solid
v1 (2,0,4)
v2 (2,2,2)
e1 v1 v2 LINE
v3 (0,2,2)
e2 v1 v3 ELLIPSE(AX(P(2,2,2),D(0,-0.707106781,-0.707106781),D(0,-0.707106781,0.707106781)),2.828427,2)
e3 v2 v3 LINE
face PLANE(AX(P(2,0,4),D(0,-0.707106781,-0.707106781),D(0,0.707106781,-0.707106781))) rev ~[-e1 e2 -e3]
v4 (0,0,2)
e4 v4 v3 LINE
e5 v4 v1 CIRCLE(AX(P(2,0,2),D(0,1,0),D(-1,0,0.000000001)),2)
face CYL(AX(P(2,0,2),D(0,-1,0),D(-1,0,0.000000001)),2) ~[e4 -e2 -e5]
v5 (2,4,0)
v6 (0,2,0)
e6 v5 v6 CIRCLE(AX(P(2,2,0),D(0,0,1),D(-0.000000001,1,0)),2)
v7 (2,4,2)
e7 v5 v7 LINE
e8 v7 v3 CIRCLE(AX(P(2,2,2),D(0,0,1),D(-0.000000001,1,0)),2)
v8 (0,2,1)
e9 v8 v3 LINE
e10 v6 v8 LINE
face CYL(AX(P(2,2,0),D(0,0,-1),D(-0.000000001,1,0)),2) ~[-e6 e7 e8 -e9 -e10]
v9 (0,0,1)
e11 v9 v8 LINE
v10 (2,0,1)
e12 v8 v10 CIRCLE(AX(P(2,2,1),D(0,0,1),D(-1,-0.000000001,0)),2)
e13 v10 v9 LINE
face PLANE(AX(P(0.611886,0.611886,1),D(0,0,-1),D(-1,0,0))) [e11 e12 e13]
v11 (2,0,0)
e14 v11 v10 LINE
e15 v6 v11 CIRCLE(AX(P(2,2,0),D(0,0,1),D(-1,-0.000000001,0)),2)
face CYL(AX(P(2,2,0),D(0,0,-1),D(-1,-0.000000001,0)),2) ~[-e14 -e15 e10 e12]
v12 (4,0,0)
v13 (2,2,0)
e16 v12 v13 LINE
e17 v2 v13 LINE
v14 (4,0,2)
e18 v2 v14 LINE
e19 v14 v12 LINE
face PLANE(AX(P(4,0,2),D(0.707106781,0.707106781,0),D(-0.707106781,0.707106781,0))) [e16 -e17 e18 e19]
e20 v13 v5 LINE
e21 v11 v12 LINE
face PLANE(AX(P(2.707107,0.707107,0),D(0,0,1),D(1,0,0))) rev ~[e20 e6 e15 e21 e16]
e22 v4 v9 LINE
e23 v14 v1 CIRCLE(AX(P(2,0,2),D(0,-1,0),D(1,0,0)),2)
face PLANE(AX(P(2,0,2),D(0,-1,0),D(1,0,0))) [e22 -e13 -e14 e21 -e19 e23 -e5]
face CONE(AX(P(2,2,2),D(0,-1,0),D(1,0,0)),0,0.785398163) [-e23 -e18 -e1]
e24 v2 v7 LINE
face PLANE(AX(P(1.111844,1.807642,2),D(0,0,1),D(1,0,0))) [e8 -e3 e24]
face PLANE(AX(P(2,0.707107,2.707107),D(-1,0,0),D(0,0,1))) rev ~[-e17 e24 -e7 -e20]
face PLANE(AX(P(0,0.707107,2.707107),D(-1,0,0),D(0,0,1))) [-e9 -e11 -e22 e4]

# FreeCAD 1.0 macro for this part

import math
import FreeCAD as App
import Part
import Sketcher

V = App.Vector


def add_polygon(sketch, points):
    """Adds a closed chain of lines whose ends are joined by coincident constraints."""
    first, n = sketch.GeometryCount, len(points)
    for a, b in zip(points, points[1:] + points[:1]):
        sketch.addGeometry(Part.LineSegment(App.Vector(*a, 0), App.Vector(*b, 0)), False)
    for i in range(n):
        sketch.addConstraint(Sketcher.Constraint("Coincident", first + i, 2, first + (i + 1) % n, 1))

doc = App.newDocument("Part")
body = doc.addObject("PartDesign::Body", "Body")

# Sketch on XY plane
sketch1 = body.newObject("Sketcher::SketchObject", "Sketch")
sketch1.AttachmentSupport = (doc.getObject("XY_Plane"), [""])
sketch1.MapMode = "FlatFace"
sketch1.addGeometry([
    Part.LineSegment(V(0, 0, 0), V(2, 0, 0)),
    Part.LineSegment(V(2, 0, 0), V(2, 4, 0)),
    Part.ArcOfCircle(Part.Circle(V(2, 2, 0), V(0, 0, 1), 2), math.radians(90), math.radians(180)),
    Part.LineSegment(V(0, 2, 0), V(0, 0, 0)),
], False)
sketch1.addConstraint([
    Sketcher.Constraint("Coincident", 0, 2, 1, 1),
    Sketcher.Constraint("Coincident", 1, 2, 2, 1),
    Sketcher.Constraint("Tangent", 2, 2, 3, 1),
    Sketcher.Constraint("Coincident", 3, 2, 0, 1),
    Sketcher.Constraint("Horizontal", 0),
    Sketcher.Constraint("Vertical", 1),
    Sketcher.Constraint("Vertical", 3),
    Sketcher.Constraint("Coincident", 3, 2, -1, 1),
    Sketcher.Constraint("Vertical", 2, 3, 0, 2),
    Sketcher.Constraint("Equal", 0, 3),
    Sketcher.Constraint("Radius", 2, 2.0),
])
pad1 = body.newObject("PartDesign::Pad", "Pad")
pad1.Profile = sketch1
pad1.Length = 2

# Sketch on YZ plane
sketch2 = body.newObject("Sketcher::SketchObject", "Sketch001")
sketch2.AttachmentSupport = (doc.getObject("YZ_Plane"), [""])
sketch2.MapMode = "FlatFace"
sketch2.AttachmentOffset = App.Placement(V(0, 0, 2), App.Rotation())
add_polygon(sketch2, [(2, 2), (0, 2), (0, 4)])  # lines 0-2
sketch2.addConstraint([
    Sketcher.Constraint("Horizontal", 0),
    Sketcher.Constraint("Vertical", 1),
    Sketcher.Constraint("PointOnObject", 0, 2, -2),
    Sketcher.Constraint("Equal", 0, 1),
    Sketcher.Constraint("DistanceX", 0, 2, 0, 1, 2.0),
    Sketcher.Constraint("DistanceY", -1, 1, 0, 2, 2.0),
])
pad2 = body.newObject("PartDesign::Pad", "Pad001")
pad2.Profile = sketch2
pad2.Length = 2
pad2.Reversed = True

# Sketch on XZ plane
sketch3 = body.newObject("Sketcher::SketchObject", "Sketch002")
sketch3.AttachmentSupport = (doc.getObject("XZ_Plane"), [""])
sketch3.MapMode = "FlatFace"
sketch3.addGeometry([
    Part.LineSegment(V(2, 4, 0), V(0, 4, 0)),
    Part.LineSegment(V(0, 4, 0), V(0, 2, 0)),
    Part.ArcOfCircle(Part.Circle(V(2, 2, 0), V(0, 0, 1), 2), math.radians(90), math.radians(180)),
], False)
sketch3.addConstraint([
    Sketcher.Constraint("Coincident", 0, 2, 1, 1),
    Sketcher.Constraint("Tangent", 1, 2, 2, 2),
    Sketcher.Constraint("Tangent", 2, 1, 0, 1),
    Sketcher.Constraint("Horizontal", 0),
    Sketcher.Constraint("Vertical", 1),
    Sketcher.Constraint("PointOnObject", 0, 2, -2),
    Sketcher.Constraint("Radius", 2, 2.0),
    Sketcher.Constraint("DistanceY", -1, 1, 2, 3, 2.0),
])
pocket1 = body.newObject("PartDesign::Pocket", "Pocket")
pocket1.Profile = sketch3
pocket1.Length = 2

# Sketch on XY plane
sketch4 = body.newObject("Sketcher::SketchObject", "Sketch003")
sketch4.AttachmentSupport = (doc.getObject("XY_Plane"), [""])
sketch4.MapMode = "FlatFace"
sketch4.addGeometry([
    Part.LineSegment(V(2, 0, 0), V(0, 0, 0)),
    Part.LineSegment(V(0, 0, 0), V(0, 2, 0)),
    Part.ArcOfCircle(Part.Circle(V(2, 2, 0), V(0, 0, 1), 2), math.radians(-180), math.radians(-90)),
], False)
sketch4.addConstraint([
    Sketcher.Constraint("Coincident", 0, 2, 1, 1),
    Sketcher.Constraint("Tangent", 1, 2, 2, 1),
    Sketcher.Constraint("Tangent", 2, 2, 0, 1),
    Sketcher.Constraint("Horizontal", 0),
    Sketcher.Constraint("Vertical", 1),
    Sketcher.Constraint("Coincident", 0, 2, -1, 1),
    Sketcher.Constraint("Radius", 2, 2.0),
])
pocket2 = body.newObject("PartDesign::Pocket", "Pocket001")
pocket2.Profile = sketch4
pocket2.Length = 1
pocket2.Reversed = True
body2 = doc.addObject("PartDesign::Body", "Body001")

# Sketch on XY plane
sketch5 = body2.newObject("Sketcher::SketchObject", "Sketch004")
sketch5.AttachmentSupport = (doc.getObject("XY_Plane001"), [""])
sketch5.MapMode = "FlatFace"
sketch5.AttachmentOffset = App.Placement(V(0, 0, 2), App.Rotation())
add_polygon(sketch5, [(4, 0), (2, 2), (2, 0)])  # lines 0-2
sketch5.addGeometry(Part.LineSegment(V(2, 2, 0), V(2, 0, 0)), True)  # axis
sketch5.addConstraint([
    Sketcher.Constraint("Vertical", 1),
    Sketcher.Constraint("Horizontal", 2),
    Sketcher.Constraint("Vertical", 3),
    Sketcher.Constraint("Coincident", 3, 1, 0, 2),
    Sketcher.Constraint("PointOnObject", 1, 2, -1),
    Sketcher.Constraint("PointOnObject", 3, 2, -1),
    Sketcher.Constraint("Equal", 2, 1),
    Sketcher.Constraint("DistanceX", 2, 1, 2, 2, 2.0),
    Sketcher.Constraint("DistanceX", -1, 1, 0, 2, 2.0),
])
revolution = body2.newObject("PartDesign::Revolution", "Revolution")
revolution.Profile = sketch5
revolution.ReferenceAxis = (sketch5, ["Axis0"])
revolution.Angle = 90
doc.recompute()

boolean = body.newObject("PartDesign::Boolean", "Boolean")
boolean.Type = "Fuse"
boolean.addObjects([body2])

# Sketch on XY plane
sketch6 = body.newObject("Sketcher::SketchObject", "Sketch005")
sketch6.AttachmentSupport = (doc.getObject("XY_Plane"), [""])
sketch6.MapMode = "FlatFace"
sketch6.AttachmentOffset = App.Placement(V(0, 0, 2), App.Rotation())
add_polygon(sketch6, [(2, 0), (2, 2), (4, 0)])  # lines 0-2
sketch6.addConstraint([
    Sketcher.Constraint("Vertical", 0),
    Sketcher.Constraint("Horizontal", 2),
    Sketcher.Constraint("PointOnObject", 1, 2, -1),
    Sketcher.Constraint("Equal", 2, 0),
    Sketcher.Constraint("DistanceX", 2, 2, 2, 1, 2.0),
    Sketcher.Constraint("DistanceX", -1, 1, 0, 2, 2.0),
])
pad3 = body.newObject("PartDesign::Pad", "Pad002")
pad3.Profile = sketch6
pad3.Length = 2
pad3.Reversed = True

doc.recompute()
